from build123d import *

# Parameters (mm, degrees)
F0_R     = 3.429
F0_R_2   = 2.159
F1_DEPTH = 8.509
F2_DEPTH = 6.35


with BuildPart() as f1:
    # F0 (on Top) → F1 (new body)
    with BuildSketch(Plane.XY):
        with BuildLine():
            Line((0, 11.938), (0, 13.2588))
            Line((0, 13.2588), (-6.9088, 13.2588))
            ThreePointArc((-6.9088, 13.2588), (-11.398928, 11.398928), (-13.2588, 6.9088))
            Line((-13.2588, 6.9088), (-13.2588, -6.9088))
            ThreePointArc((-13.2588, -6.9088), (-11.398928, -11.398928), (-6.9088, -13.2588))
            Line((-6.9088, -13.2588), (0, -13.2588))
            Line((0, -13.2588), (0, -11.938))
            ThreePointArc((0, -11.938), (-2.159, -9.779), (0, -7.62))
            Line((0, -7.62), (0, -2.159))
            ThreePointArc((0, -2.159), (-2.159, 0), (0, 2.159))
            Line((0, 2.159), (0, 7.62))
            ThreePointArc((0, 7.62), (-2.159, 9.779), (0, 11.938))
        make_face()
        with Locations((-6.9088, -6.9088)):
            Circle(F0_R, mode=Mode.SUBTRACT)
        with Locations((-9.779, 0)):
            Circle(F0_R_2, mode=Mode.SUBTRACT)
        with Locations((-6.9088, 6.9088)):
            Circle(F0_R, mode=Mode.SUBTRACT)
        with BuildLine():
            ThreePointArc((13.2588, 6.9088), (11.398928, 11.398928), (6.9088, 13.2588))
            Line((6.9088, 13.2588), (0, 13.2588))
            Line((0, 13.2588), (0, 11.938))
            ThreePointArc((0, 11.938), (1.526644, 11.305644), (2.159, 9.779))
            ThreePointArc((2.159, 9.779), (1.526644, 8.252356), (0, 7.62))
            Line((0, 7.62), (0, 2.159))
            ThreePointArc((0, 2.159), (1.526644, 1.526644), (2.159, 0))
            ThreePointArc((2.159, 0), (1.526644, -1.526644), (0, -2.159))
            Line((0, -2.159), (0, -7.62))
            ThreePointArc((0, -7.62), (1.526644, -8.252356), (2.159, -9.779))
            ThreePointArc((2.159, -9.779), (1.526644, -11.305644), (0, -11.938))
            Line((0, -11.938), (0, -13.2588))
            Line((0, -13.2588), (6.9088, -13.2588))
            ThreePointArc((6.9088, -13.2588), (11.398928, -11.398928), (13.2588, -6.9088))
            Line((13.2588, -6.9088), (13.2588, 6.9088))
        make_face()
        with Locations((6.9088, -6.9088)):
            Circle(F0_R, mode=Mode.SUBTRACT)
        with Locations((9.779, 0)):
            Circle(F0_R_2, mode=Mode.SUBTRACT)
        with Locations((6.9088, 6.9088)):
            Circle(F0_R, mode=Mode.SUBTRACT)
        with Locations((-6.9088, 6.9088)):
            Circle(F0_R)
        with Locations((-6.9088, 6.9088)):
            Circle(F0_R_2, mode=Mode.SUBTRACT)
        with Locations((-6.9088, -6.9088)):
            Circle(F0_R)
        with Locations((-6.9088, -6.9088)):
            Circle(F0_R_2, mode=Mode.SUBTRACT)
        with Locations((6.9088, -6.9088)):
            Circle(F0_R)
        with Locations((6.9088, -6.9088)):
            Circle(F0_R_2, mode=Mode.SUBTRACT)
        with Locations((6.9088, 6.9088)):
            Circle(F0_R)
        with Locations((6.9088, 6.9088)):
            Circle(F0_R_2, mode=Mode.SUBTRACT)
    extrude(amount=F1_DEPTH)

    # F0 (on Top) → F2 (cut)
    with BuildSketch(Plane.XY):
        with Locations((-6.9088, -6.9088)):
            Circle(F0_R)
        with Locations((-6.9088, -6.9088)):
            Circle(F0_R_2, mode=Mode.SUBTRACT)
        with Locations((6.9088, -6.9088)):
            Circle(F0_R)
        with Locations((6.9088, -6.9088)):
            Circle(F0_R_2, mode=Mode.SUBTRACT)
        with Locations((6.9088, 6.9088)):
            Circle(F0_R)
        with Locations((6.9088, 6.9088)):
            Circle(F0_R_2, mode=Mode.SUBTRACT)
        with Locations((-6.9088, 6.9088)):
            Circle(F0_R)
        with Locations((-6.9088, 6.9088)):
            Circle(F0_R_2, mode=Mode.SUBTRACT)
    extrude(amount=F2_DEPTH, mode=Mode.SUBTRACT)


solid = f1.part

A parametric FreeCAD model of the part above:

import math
import FreeCAD as App
import Part
import Sketcher
from FreeCAD import Vector
Q = App.Units.Quantity

doc = App.newDocument("Part")
body = doc.addObject("PartDesign::Body", "Body")

# Sketch on XY plane
sketch1 = doc.addObject("Sketcher::SketchObject", "Sketch")
body.addObject(sketch1)
sketch1.AttachmentSupport = (doc.XY_Plane, [""])
sketch1.MapMode = "FlatFace"
sketch1.addGeometry([
    Part.ArcOfCircle(Part.Circle(Vector(-6.9088, 6.9088, 0), Vector(0, 0, 1), 6.35), math.radians(90.000002), math.radians(179.999998)),  # 0
    Part.LineSegment(Vector(-13.2588, 6.9088, 0), Vector(-13.2588, -6.9088, 0)),  # 1
    Part.ArcOfCircle(Part.Circle(Vector(-6.9088, -6.9088, 0), Vector(0, 0, 1), 6.35), math.radians(-179.999998), math.radians(-90.000002)),  # 2
    Part.LineSegment(Vector(-6.9088, -13.2588, 0), Vector(6.9088, -13.2588, 0)),  # 3
    Part.ArcOfCircle(Part.Circle(Vector(6.9088, -6.9088, 0), Vector(0, 0, 1), 6.35), math.radians(-89.999998), math.radians(-0.000002)),  # 4
    Part.LineSegment(Vector(13.2588, -6.9088, 0), Vector(13.2588, 6.9088, 0)),  # 5
    Part.ArcOfCircle(Part.Circle(Vector(6.9088, 6.9088, 0), Vector(0, 0, 1), 6.35), math.radians(0.000002), math.radians(89.999998)),  # 6
    Part.LineSegment(Vector(6.9088, 13.2588, 0), Vector(-6.9088, 13.2588, 0)),  # 7
    Part.Circle(Vector(-6.9088, -6.9088, 0), Vector(0, 0, 1), 2.159),  # 8
    Part.ArcOfCircle(Part.Circle(Vector(0, -9.779, 0), Vector(0, 0, 1), 2.159), math.radians(90), math.radians(270)),  # 9
    Part.ArcOfCircle(Part.Circle(Vector(0.000002, -9.778998, 0), Vector(0, 0, 1), 2.158998), math.radians(-0.000042), math.radians(90.000042)),  # 10
    Part.ArcOfCircle(Part.Circle(Vector(0.000002, -9.779002, 0), Vector(0, 0, 1), 2.158998), math.radians(-90.000042), math.radians(0.000042)),  # 11
    Part.Circle(Vector(6.9088, -6.9088, 0), Vector(0, 0, 1), 2.159),  # 12
    Part.Circle(Vector(-9.779, 0, 0), Vector(0, 0, 1), 2.159),  # 13
    Part.Circle(Vector(-6.9088, 6.9088, 0), Vector(0, 0, 1), 2.159),  # 14
    Part.ArcOfCircle(Part.Circle(Vector(0, 0, 0), Vector(0, 0, 1), 2.159), math.radians(90), math.radians(270)),  # 15
    Part.ArcOfCircle(Part.Circle(Vector(0.000002, 0.000002, 0), Vector(0, 0, 1), 2.158998), math.radians(-0.000042), math.radians(90.000042)),  # 16
    Part.ArcOfCircle(Part.Circle(Vector(0.000002, -0.000002, 0), Vector(0, 0, 1), 2.158998), math.radians(-90.000042), math.radians(0.000042)),  # 17
    Part.Circle(Vector(9.779, 0, 0), Vector(0, 0, 1), 2.159),  # 18
    Part.ArcOfCircle(Part.Circle(Vector(0, 9.779, 0), Vector(0, 0, 1), 2.159), math.radians(90), math.radians(270)),  # 19
    Part.ArcOfCircle(Part.Circle(Vector(0.000002, 9.779002, 0), Vector(0, 0, 1), 2.158998), math.radians(-0.000042), math.radians(90.000042)),  # 20
    Part.ArcOfCircle(Part.Circle(Vector(0.000002, 9.778998, 0), Vector(0, 0, 1), 2.158998), math.radians(-90.000042), math.radians(0.000042)),  # 21
    Part.Circle(Vector(6.9088, 6.9088, 0), Vector(0, 0, 1), 2.159),  # 22
], False)
sketch1.addConstraint([
    Sketcher.Constraint("Tangent", 0, 2, 1, 1),
    Sketcher.Constraint("Tangent", 1, 2, 2, 1),
    Sketcher.Constraint("Tangent", 2, 2, 3, 1),
    Sketcher.Constraint("Tangent", 3, 2, 4, 1),
    Sketcher.Constraint("Tangent", 4, 2, 5, 1),
    Sketcher.Constraint("Tangent", 5, 2, 6, 1),
    Sketcher.Constraint("Tangent", 6, 2, 7, 1),
    Sketcher.Constraint("Tangent", 7, 2, 0, 1),
    Sketcher.Constraint("Tangent", 9, 1, 10, 2),
    Sketcher.Constraint("Tangent", 10, 1, 11, 2),
    Sketcher.Constraint("Tangent", 11, 1, 9, 2),
    Sketcher.Constraint("Tangent", 15, 1, 16, 2),
    Sketcher.Constraint("Tangent", 16, 1, 17, 2),
    Sketcher.Constraint("Tangent", 17, 1, 15, 2),
    Sketcher.Constraint("Tangent", 19, 1, 20, 2),
    Sketcher.Constraint("Tangent", 20, 1, 21, 2),
    Sketcher.Constraint("Tangent", 21, 1, 19, 2),
    Sketcher.Constraint("Vertical", 1),
    Sketcher.Constraint("Horizontal", 3),
    Sketcher.Constraint("Vertical", 5),
    Sketcher.Constraint("Horizontal", 7),
    Sketcher.Constraint("Coincident", 15, 3, -1, 1),
    Sketcher.Constraint("Coincident", 8, 3, 2, 3),
    Sketcher.Constraint("Coincident", 12, 3, 4, 3),
    Sketcher.Constraint("Coincident", 14, 3, 0, 3),
    Sketcher.Constraint("Coincident", 22, 3, 6, 3),
    Sketcher.Constraint("Equal", 0, 2),
    Sketcher.Constraint("Equal", 2, 4),
    Sketcher.Constraint("Equal", 4, 6),
    Sketcher.Constraint("Equal", 8, 9),
    Sketcher.Constraint("Equal", 11, 12),
    Sketcher.Constraint("Equal", 12, 13),
    Sketcher.Constraint("Equal", 13, 14),
    Sketcher.Constraint("Equal", 14, 15),
    Sketcher.Constraint("Equal", 17, 18),
    Sketcher.Constraint("Equal", 18, 19),
    Sketcher.Constraint("Equal", 21, 22),
    Sketcher.Constraint("Symmetric", 0, 3, 4, 3, -1, 1),
    Sketcher.Constraint("Symmetric", 13, 3, 18, 3, -1, 1),
    Sketcher.Constraint("Symmetric", 9, 3, 19, 3, -1, 1),
    Sketcher.Constraint("Symmetric", 10, 1, 20, 1, -1),
    Sketcher.Constraint("PointOnObject", 13, 3, -1),
    Sketcher.Constraint("PointOnObject", 9, 1, -2),
    Sketcher.Constraint("PointOnObject", 11, 1, -2),
    Sketcher.Constraint("PointOnObject", 15, 1, -2),
    Sketcher.Constraint("PointOnObject", 16, 1, -1),
    Sketcher.Constraint("PointOnObject", 17, 1, -2),
    Sketcher.Constraint("PointOnObject", 19, 1, -2),
    Sketcher.Constraint("PointOnObject", 21, 1, -2),
    Sketcher.Constraint("Horizontal", 11, 3, 10, 1),
    Sketcher.Constraint("Equal", 7, 1),
    Sketcher.Constraint("Diameter", 8, Q("0.17 in")),
    Sketcher.Constraint("Radius", 0, Q("0.25 in")),
    Sketcher.Constraint("DistanceY", 9, 1, -1, 1, Q("0.3 in")),
    Sketcher.Constraint("DistanceX", 16, 1, 18, 3, Q("0.3 in")),
    Sketcher.Constraint("DistanceX", 3, 1, 3, 2, Q("0.544 in")),
])
pad1 = doc.addObject("PartDesign::Pad", "Pad")
body.addObject(pad1)
pad1.Profile = sketch1
pad1.Length = Q("0.335 in")

# Sketch on XY plane
sketch2 = doc.addObject("Sketcher::SketchObject", "Sketch001")
body.addObject(sketch2)
sketch2.AttachmentSupport = (doc.XY_Plane, [""])
sketch2.MapMode = "FlatFace"
sketch2.addGeometry([
    Part.Circle(Vector(-6.9088, -6.9088, 0), Vector(0, 0, 1), 3.429),  # 0
    Part.Circle(Vector(-6.9088, -6.9088, 0), Vector(0, 0, 1), 2.159),  # 1
    Part.Circle(Vector(6.9088, -6.9088, 0), Vector(0, 0, 1), 3.429),  # 2
    Part.Circle(Vector(6.9088, -6.9088, 0), Vector(0, 0, 1), 2.159),  # 3
    Part.Circle(Vector(6.9088, 6.9088, 0), Vector(0, 0, 1), 3.429),  # 4
    Part.Circle(Vector(6.9088, 6.9088, 0), Vector(0, 0, 1), 2.159),  # 5
    Part.Circle(Vector(-6.9088, 6.9088, 0), Vector(0, 0, 1), 3.429),  # 6
    Part.Circle(Vector(-6.9088, 6.9088, 0), Vector(0, 0, 1), 2.159),  # 7
], False)
sketch2.addConstraint([
    Sketcher.Constraint("Coincident", 1, 3, 0, 3),
    Sketcher.Constraint("Coincident", 3, 3, 2, 3),
    Sketcher.Constraint("Coincident", 5, 3, 4, 3),
    Sketcher.Constraint("Coincident", 7, 3, 6, 3),
    Sketcher.Constraint("Equal", 0, 2),
    Sketcher.Constraint("Equal", 1, 3),
    Sketcher.Constraint("Equal", 2, 4),
    Sketcher.Constraint("Equal", 3, 5),
    Sketcher.Constraint("Equal", 4, 6),
    Sketcher.Constraint("Equal", 5, 7),
    Sketcher.Constraint("Symmetric", 0, 3, 4, 3, -1, 1),
    Sketcher.Constraint("Symmetric", 2, 3, 6, 3, -1, 1),
    Sketcher.Constraint("Symmetric", 0, 3, 2, 3, -2),
    Sketcher.Constraint("Diameter", 0, Q("0.27 in")),
    Sketcher.Constraint("Diameter", 1, Q("0.17 in")),
    Sketcher.Constraint("DistanceX", 0, 3, -1, 1, Q("0.272 in")),
    Sketcher.Constraint("DistanceY", 0, 3, -1, 1, Q("0.272 in")),
])
pocket1 = doc.addObject("PartDesign::Pocket", "Pocket")
body.addObject(pocket1)
pocket1.Profile = sketch2
pocket1.Length = Q("0.25 in")
pocket1.Reversed = True

doc.recompute()
